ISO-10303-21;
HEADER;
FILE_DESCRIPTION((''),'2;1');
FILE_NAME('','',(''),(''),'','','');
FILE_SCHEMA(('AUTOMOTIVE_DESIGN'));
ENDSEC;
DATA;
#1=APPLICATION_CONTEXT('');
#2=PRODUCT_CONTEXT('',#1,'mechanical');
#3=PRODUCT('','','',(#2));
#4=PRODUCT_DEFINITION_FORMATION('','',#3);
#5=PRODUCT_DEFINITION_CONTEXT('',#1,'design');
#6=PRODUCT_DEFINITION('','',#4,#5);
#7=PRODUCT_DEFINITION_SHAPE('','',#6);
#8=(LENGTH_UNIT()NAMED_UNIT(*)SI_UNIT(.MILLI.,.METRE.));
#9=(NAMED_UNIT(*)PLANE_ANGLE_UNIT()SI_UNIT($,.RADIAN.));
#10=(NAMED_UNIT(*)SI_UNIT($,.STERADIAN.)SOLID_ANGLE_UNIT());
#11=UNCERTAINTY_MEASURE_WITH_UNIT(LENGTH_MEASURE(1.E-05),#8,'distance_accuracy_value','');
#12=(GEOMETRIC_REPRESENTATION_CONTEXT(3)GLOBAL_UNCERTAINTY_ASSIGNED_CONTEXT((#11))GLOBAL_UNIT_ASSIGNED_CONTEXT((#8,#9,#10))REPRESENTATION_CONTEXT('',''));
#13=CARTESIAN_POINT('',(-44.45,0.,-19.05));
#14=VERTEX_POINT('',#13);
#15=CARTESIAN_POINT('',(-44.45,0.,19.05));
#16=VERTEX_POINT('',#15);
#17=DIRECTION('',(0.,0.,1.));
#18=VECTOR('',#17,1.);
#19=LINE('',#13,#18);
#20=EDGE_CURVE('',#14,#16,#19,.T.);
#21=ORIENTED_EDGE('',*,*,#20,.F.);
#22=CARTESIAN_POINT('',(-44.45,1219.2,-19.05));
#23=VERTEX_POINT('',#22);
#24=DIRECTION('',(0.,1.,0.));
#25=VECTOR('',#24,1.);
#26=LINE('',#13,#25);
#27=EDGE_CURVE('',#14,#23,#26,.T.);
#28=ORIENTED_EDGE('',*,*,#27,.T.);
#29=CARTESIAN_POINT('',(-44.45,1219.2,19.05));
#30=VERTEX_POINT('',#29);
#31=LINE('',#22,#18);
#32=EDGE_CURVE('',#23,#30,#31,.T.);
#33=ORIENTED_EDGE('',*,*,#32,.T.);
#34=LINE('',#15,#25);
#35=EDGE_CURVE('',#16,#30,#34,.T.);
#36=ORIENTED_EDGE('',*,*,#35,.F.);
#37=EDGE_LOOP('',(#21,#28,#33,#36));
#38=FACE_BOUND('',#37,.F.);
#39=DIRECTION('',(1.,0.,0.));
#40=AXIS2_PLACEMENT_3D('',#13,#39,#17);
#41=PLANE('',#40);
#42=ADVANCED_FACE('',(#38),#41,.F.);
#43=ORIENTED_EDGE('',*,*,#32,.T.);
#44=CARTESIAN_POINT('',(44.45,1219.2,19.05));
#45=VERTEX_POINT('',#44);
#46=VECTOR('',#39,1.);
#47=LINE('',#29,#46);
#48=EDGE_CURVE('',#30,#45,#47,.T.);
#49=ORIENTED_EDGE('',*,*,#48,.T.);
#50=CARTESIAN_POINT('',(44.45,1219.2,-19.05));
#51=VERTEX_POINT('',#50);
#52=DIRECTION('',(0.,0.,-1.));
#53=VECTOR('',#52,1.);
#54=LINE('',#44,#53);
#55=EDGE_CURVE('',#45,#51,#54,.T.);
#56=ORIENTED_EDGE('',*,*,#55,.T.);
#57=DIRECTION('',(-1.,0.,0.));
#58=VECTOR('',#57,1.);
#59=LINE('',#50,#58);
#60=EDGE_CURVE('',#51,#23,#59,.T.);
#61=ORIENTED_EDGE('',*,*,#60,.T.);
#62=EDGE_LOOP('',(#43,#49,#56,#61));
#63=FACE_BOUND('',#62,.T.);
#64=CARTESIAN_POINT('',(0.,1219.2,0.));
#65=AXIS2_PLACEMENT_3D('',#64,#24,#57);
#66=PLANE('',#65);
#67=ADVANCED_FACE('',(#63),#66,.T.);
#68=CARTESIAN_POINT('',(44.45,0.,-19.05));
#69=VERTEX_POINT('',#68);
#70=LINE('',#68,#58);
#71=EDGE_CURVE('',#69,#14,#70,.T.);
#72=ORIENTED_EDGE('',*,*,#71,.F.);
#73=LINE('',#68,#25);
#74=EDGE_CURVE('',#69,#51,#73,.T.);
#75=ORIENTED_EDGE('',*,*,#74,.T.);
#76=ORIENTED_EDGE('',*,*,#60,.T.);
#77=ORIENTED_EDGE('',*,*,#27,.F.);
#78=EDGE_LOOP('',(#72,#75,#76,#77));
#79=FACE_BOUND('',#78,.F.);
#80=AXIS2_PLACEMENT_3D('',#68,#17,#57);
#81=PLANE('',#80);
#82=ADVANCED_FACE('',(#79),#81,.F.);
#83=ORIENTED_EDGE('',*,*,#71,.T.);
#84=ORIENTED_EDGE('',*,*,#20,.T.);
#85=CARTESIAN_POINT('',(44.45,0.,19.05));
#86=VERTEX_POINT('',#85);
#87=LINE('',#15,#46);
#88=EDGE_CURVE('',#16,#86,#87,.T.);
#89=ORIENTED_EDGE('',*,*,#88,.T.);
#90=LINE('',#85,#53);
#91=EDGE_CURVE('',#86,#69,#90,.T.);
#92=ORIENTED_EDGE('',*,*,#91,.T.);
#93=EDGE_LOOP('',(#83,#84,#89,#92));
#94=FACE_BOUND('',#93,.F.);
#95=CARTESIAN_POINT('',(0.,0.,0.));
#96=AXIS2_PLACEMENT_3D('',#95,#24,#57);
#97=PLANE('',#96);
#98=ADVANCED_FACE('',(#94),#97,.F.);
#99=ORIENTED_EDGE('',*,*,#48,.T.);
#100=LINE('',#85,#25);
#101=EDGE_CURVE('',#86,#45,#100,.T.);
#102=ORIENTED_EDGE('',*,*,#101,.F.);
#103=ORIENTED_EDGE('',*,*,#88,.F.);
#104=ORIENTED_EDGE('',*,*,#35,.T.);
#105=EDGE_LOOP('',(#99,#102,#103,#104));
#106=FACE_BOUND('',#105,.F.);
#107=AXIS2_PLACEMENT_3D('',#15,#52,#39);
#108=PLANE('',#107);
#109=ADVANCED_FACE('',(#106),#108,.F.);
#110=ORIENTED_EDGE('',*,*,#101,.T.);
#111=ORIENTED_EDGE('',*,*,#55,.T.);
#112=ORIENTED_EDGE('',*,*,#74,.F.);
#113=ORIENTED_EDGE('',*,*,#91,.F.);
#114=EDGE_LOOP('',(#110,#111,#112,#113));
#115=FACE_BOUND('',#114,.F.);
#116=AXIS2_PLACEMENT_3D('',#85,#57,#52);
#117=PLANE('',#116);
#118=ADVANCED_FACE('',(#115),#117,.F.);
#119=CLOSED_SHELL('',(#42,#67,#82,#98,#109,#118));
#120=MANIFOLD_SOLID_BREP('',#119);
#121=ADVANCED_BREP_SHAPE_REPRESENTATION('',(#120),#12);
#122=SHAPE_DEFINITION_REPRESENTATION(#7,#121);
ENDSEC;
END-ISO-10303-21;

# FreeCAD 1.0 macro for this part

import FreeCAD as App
import Part
import Sketcher
from FreeCAD import Vector
Q = App.Units.Quantity

doc = App.newDocument("Part")
params = doc.addObject("Spreadsheet::Sheet", "Params")
for row, (alias, value) in enumerate([
    ("sketch1_width", "3.5 in"),
    ("sketch1_height", "1.5 in"),
    ("pad1_length", "48 in"),
], start=1):
    params.set(f"A{row}", alias)
    params.set(f"B{row}", "=" + value)
    params.setAlias(f"B{row}", alias)

body = doc.addObject("PartDesign::Body", "Body")

# Sketch on XZ plane
sketch1 = body.newObject("Sketcher::SketchObject", "Sketch")
sketch1.AttachmentSupport = (doc.getObject("XZ_Plane"), [""])
sketch1.MapMode = "FlatFace"
sketch1.addGeometry(Part.LineSegment(Vector(44.45, 19.05, 0), Vector(44.45, -19.05, 0)), False)
sketch1.addGeometry(Part.LineSegment(Vector(44.45, -19.05, 0), Vector(-44.45, -19.05, 0)), False)
sketch1.addGeometry(Part.LineSegment(Vector(-44.45, -19.05, 0), Vector(-44.45, 19.05, 0)), False)
sketch1.addGeometry(Part.LineSegment(Vector(-44.45, 19.05, 0), Vector(44.45, 19.05, 0)), False)
sketch1.addConstraint(Sketcher.Constraint("Coincident", 0, 2, 1, 1))
sketch1.addConstraint(Sketcher.Constraint("Coincident", 1, 2, 2, 1))
sketch1.addConstraint(Sketcher.Constraint("Coincident", 2, 2, 3, 1))
sketch1.addConstraint(Sketcher.Constraint("Coincident", 3, 2, 0, 1))
sketch1.addConstraint(Sketcher.Constraint("Vertical", 0))
sketch1.addConstraint(Sketcher.Constraint("Horizontal", 1))
sketch1.addConstraint(Sketcher.Constraint("Vertical", 2))
sketch1.addConstraint(Sketcher.Constraint("Horizontal", 3))
sketch1.addConstraint(Sketcher.Constraint("Symmetric", 0, 2, 2, 2, -1, 1))
sketch1.addConstraint(Sketcher.Constraint("DistanceX", 1, 2, 1, 1, Q("3.5 in")))
sketch1.addConstraint(Sketcher.Constraint("DistanceY", 0, 2, 0, 1, Q("1.5 in")))
sketch1.setExpression("Constraints[9]", "Params.sketch1_width")
sketch1.setExpression("Constraints[10]", "Params.sketch1_height")
pad1 = body.newObject("PartDesign::Pad", "Pad")
pad1.Profile = sketch1
pad1.setExpression("Length", "Params.pad1_length")
pad1.Reversed = True

doc.recompute()
